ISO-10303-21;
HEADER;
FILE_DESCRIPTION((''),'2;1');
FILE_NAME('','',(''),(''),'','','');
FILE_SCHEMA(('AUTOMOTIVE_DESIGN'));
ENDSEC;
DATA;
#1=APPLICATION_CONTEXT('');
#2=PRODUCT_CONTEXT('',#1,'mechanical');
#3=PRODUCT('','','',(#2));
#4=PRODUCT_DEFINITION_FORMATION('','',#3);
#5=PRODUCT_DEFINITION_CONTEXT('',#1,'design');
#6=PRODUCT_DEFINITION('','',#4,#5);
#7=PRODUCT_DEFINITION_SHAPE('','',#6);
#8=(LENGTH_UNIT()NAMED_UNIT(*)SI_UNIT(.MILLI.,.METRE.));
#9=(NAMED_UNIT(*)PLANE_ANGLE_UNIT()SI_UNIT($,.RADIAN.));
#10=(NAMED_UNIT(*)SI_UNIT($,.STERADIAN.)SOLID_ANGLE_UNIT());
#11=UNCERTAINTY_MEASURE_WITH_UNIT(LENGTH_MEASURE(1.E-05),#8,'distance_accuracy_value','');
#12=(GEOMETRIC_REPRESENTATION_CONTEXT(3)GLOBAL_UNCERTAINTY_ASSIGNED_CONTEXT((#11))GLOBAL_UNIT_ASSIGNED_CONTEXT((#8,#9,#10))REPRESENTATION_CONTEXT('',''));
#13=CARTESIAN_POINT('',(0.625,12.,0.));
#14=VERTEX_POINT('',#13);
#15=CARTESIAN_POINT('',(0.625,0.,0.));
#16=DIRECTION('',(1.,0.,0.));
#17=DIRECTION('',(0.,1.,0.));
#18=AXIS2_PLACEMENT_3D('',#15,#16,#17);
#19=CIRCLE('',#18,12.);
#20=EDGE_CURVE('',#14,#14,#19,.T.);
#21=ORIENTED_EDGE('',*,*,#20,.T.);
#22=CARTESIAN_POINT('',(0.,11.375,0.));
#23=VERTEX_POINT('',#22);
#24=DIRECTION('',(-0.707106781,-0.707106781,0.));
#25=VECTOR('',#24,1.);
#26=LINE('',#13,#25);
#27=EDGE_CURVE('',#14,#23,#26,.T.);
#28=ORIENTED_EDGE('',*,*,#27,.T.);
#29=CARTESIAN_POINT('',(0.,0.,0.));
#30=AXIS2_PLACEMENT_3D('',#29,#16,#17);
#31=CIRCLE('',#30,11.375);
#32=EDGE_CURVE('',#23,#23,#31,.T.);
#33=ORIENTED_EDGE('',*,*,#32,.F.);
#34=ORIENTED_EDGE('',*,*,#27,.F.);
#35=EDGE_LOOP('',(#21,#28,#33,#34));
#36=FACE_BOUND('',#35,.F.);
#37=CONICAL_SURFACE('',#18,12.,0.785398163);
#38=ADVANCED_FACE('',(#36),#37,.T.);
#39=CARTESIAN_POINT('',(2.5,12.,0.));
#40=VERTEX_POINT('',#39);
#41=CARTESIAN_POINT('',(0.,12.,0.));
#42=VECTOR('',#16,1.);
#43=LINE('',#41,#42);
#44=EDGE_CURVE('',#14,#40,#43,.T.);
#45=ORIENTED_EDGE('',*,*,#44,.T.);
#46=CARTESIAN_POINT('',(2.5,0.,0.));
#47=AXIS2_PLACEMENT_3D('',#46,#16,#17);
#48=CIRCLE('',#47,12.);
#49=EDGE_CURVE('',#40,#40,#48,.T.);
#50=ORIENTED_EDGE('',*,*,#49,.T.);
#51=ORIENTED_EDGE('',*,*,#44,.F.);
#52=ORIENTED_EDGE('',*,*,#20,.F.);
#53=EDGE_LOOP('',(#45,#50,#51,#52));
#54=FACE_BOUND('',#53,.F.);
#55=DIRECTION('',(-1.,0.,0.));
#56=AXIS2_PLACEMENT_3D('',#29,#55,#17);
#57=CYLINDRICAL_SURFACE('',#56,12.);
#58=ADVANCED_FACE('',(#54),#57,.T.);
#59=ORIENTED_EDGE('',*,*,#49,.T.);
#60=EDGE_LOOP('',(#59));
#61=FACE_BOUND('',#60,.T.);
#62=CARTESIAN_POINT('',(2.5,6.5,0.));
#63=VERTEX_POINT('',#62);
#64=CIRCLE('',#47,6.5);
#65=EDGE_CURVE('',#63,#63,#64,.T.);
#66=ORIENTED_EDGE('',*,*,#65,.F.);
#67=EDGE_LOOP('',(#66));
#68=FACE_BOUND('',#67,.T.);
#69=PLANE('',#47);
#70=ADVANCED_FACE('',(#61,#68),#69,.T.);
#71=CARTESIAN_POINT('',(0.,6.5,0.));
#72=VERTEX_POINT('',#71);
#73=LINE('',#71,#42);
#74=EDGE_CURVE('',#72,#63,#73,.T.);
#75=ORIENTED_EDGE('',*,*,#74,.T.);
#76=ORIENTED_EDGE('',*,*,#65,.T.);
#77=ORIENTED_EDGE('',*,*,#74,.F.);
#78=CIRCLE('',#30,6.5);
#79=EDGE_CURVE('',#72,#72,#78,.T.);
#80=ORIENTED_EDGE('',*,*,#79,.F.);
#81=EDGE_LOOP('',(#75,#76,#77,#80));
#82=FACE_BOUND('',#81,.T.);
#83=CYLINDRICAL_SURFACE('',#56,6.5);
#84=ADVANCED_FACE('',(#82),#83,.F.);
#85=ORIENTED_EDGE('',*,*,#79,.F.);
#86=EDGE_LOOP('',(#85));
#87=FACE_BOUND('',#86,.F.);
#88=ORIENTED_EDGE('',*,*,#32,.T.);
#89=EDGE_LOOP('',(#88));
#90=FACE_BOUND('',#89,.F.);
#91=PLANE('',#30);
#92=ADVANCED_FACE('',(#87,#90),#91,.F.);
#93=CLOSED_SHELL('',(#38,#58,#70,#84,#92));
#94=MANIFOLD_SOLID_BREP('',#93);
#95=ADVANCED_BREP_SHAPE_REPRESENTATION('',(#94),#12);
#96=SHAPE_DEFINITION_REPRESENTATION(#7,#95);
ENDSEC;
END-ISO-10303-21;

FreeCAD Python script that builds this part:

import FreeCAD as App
import Part
import Sketcher

V = App.Vector


def edges_at(feature, points):
    """Names of the edges that pass closest to the given points."""
    edges = feature.Shape.Edges
    near = lambda p: min(range(len(edges)), key=lambda i: edges[i].distToShape(Part.Vertex(*p))[0])
    return sorted({f"Edge{near(p) + 1}" for p in points})

doc = App.newDocument("Part")
body = doc.addObject("PartDesign::Body", "Body")

# Sketch on YZ plane
sketch1 = body.newObject("Sketcher::SketchObject", "Sketch")
sketch1.AttachmentSupport = (doc.getObject("YZ_Plane"), [""])
sketch1.MapMode = "FlatFace"
sketch1.addGeometry([
    Part.Circle(V(0, 0, 0), V(0, 0, 1), 12),
    Part.Circle(V(0, 0, 0), V(0, 0, 1), 6),
], False)
sketch1.addConstraint([
    Sketcher.Constraint("Coincident", 0, 3, -1, 1),
    Sketcher.Constraint("Coincident", 1, 3, -1, 1),
    Sketcher.Constraint("Diameter", 0, 24.0),
    Sketcher.Constraint("Diameter", 1, 13.0),
])
pad1 = body.newObject("PartDesign::Pad", "Pad")
pad1.Profile = sketch1
pad1.Length = 2.5
doc.recompute()

chamfer = body.newObject("PartDesign::Chamfer", "Chamfer")
chamfer.Base = (pad1, edges_at(pad1, [(0, -12, 0)]))
chamfer.Size = 0.625

doc.recompute()
